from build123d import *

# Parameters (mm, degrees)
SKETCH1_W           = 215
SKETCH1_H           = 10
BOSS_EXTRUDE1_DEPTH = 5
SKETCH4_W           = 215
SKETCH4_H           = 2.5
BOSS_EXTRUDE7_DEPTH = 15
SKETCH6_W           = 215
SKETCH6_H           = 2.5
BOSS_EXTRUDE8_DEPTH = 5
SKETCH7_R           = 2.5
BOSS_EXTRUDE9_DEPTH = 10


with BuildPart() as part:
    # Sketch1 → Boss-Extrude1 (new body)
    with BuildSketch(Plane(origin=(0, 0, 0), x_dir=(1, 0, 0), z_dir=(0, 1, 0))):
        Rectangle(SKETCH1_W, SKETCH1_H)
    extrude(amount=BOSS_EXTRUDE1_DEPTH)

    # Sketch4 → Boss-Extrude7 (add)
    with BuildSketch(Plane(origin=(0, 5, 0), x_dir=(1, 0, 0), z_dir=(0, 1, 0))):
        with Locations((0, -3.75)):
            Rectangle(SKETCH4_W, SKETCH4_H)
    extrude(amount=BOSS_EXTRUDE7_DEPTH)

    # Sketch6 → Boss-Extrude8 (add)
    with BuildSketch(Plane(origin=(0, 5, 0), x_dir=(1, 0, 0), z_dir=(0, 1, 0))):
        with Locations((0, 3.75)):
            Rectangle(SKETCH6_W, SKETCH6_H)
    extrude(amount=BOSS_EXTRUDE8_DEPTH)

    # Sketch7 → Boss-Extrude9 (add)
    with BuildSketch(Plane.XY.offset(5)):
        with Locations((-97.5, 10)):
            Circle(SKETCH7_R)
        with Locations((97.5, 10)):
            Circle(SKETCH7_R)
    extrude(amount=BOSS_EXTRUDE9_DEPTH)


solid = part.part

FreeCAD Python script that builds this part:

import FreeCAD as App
import Part
import Sketcher
Q = App.Units.Quantity

doc = App.newDocument("Part")
body = doc.addObject("PartDesign::Body", "Body")

# Sketch on XZ plane
sketch1 = doc.addObject("Sketcher::SketchObject", "Sketch")
body.addObject(sketch1)
sketch1.AttachmentSupport = (doc.XZ_Plane, [""])
sketch1.MapMode = "FlatFace"
sketch1.addGeometry(Part.LineSegment(App.Vector(-107.5, -5, 0), App.Vector(-107.5, 5, 0)), False)
sketch1.addGeometry(Part.LineSegment(App.Vector(-107.5, 5, 0), App.Vector(107.5, 5, 0)), False)
sketch1.addGeometry(Part.LineSegment(App.Vector(107.5, 5, 0), App.Vector(107.5, -5, 0)), False)
sketch1.addGeometry(Part.LineSegment(App.Vector(107.5, -5, 0), App.Vector(-107.5, -5, 0)), False)
sketch1.addConstraint(Sketcher.Constraint("Coincident", 0, 2, 1, 1))
sketch1.addConstraint(Sketcher.Constraint("Coincident", 1, 2, 2, 1))
sketch1.addConstraint(Sketcher.Constraint("Coincident", 2, 2, 3, 1))
sketch1.addConstraint(Sketcher.Constraint("Coincident", 3, 2, 0, 1))
sketch1.addConstraint(Sketcher.Constraint("Vertical", 0))
sketch1.addConstraint(Sketcher.Constraint("Horizontal", 1))
sketch1.addConstraint(Sketcher.Constraint("Vertical", 2))
sketch1.addConstraint(Sketcher.Constraint("Horizontal", 3))
sketch1.addConstraint(Sketcher.Constraint("Symmetric", 0, 2, 2, 2, -1, 1))
sketch1.addConstraint(Sketcher.Constraint("DistanceX", 1, 1, 1, 2, Q("215 mm")))
sketch1.addConstraint(Sketcher.Constraint("DistanceY", 0, 1, 0, 2, Q("10 mm")))
pad1 = doc.addObject("PartDesign::Pad", "Pad")
body.addObject(pad1)
pad1.Profile = sketch1
pad1.Length = 5
pad1.Reversed = True

# Sketch on XZ plane
sketch2 = doc.addObject("Sketcher::SketchObject", "Sketch001")
body.addObject(sketch2)
sketch2.AttachmentSupport = (doc.XZ_Plane, [""])
sketch2.MapMode = "FlatFace"
sketch2.AttachmentOffset = App.Placement(App.Vector(0, 0, -5), App.Rotation())
sketch2.addGeometry(Part.LineSegment(App.Vector(-107.5, 2.5, 0), App.Vector(-107.5, 5, 0)), False)
sketch2.addGeometry(Part.LineSegment(App.Vector(-107.5, 5, 0), App.Vector(107.5, 5, 0)), False)
sketch2.addGeometry(Part.LineSegment(App.Vector(107.5, 5, 0), App.Vector(107.5, 2.5, 0)), False)
sketch2.addGeometry(Part.LineSegment(App.Vector(107.5, 2.5, 0), App.Vector(-107.5, 2.5, 0)), False)
sketch2.addConstraint(Sketcher.Constraint("Coincident", 0, 2, 1, 1))
sketch2.addConstraint(Sketcher.Constraint("Coincident", 1, 2, 2, 1))
sketch2.addConstraint(Sketcher.Constraint("Coincident", 2, 2, 3, 1))
sketch2.addConstraint(Sketcher.Constraint("Coincident", 3, 2, 0, 1))
sketch2.addConstraint(Sketcher.Constraint("Vertical", 0))
sketch2.addConstraint(Sketcher.Constraint("Horizontal", 1))
sketch2.addConstraint(Sketcher.Constraint("Vertical", 2))
sketch2.addConstraint(Sketcher.Constraint("Horizontal", 3))
sketch2.addConstraint(Sketcher.Constraint("DistanceX", 1, 1, 1, 2, Q("215 mm")))
sketch2.addConstraint(Sketcher.Constraint("DistanceY", 0, 1, 0, 2, Q("2.5 mm")))
sketch2.addConstraint(Sketcher.Constraint("DistanceY", -1, 1, 0, 2, Q("5 mm")))
sketch2.addConstraint(Sketcher.Constraint("DistanceX", 0, 2, -1, 1, Q("107.5 mm")))
pad2 = doc.addObject("PartDesign::Pad", "Pad001")
body.addObject(pad2)
pad2.Profile = sketch2
pad2.Length = 15
pad2.Reversed = True

# Sketch on XZ plane
sketch3 = doc.addObject("Sketcher::SketchObject", "Sketch002")
body.addObject(sketch3)
sketch3.AttachmentSupport = (doc.XZ_Plane, [""])
sketch3.MapMode = "FlatFace"
sketch3.AttachmentOffset = App.Placement(App.Vector(0, 0, -5), App.Rotation())
sketch3.addGeometry(Part.LineSegment(App.Vector(-107.5, -5, 0), App.Vector(-107.5, -2.5, 0)), False)
sketch3.addGeometry(Part.LineSegment(App.Vector(-107.5, -2.5, 0), App.Vector(107.5, -2.5, 0)), False)
sketch3.addGeometry(Part.LineSegment(App.Vector(107.5, -2.5, 0), App.Vector(107.5, -5, 0)), False)
sketch3.addGeometry(Part.LineSegment(App.Vector(107.5, -5, 0), App.Vector(-107.5, -5, 0)), False)
sketch3.addConstraint(Sketcher.Constraint("Coincident", 0, 2, 1, 1))
sketch3.addConstraint(Sketcher.Constraint("Coincident", 1, 2, 2, 1))
sketch3.addConstraint(Sketcher.Constraint("Coincident", 2, 2, 3, 1))
sketch3.addConstraint(Sketcher.Constraint("Coincident", 3, 2, 0, 1))
sketch3.addConstraint(Sketcher.Constraint("Vertical", 0))
sketch3.addConstraint(Sketcher.Constraint("Horizontal", 1))
sketch3.addConstraint(Sketcher.Constraint("Vertical", 2))
sketch3.addConstraint(Sketcher.Constraint("Horizontal", 3))
sketch3.addConstraint(Sketcher.Constraint("DistanceX", 1, 1, 1, 2, Q("215 mm")))
sketch3.addConstraint(Sketcher.Constraint("DistanceY", 0, 1, 0, 2, Q("2.5 mm")))
sketch3.addConstraint(Sketcher.Constraint("DistanceY", 2, 2, -1, 1, Q("5 mm")))
sketch3.addConstraint(Sketcher.Constraint("DistanceX", 0, 2, -1, 1, Q("107.5 mm")))
pad3 = doc.addObject("PartDesign::Pad", "Pad002")
body.addObject(pad3)
pad3.Profile = sketch3
pad3.Length = 5
pad3.Reversed = True

# Sketch on XY plane
sketch4 = doc.addObject("Sketcher::SketchObject", "Sketch003")
body.addObject(sketch4)
sketch4.AttachmentSupport = (doc.XY_Plane, [""])
sketch4.MapMode = "FlatFace"
sketch4.AttachmentOffset = App.Placement(App.Vector(0, 0, 5), App.Rotation())
sketch4.addGeometry(Part.Circle(App.Vector(-97.5, 10, 0), App.Vector(0, 0, 1), 2.5), False)
sketch4.addGeometry(Part.Circle(App.Vector(97.5, 10, 0), App.Vector(0, 0, 1), 2.5), False)
sketch4.addConstraint(Sketcher.Constraint("Equal", 0, 1))
sketch4.addConstraint(Sketcher.Constraint("Symmetric", 0, 3, 1, 3, -2))
sketch4.addConstraint(Sketcher.Constraint("Diameter", 0, Q("5 mm")))
sketch4.addConstraint(Sketcher.Constraint("DistanceY", -1, 1, 0, 3, Q("10 mm")))
sketch4.addConstraint(Sketcher.Constraint("DistanceX", 0, 3, 1, 3, Q("195 mm")))
pad4 = doc.addObject("PartDesign::Pad", "Pad003")
body.addObject(pad4)
pad4.Profile = sketch4
pad4.Length = 10

doc.recompute()
